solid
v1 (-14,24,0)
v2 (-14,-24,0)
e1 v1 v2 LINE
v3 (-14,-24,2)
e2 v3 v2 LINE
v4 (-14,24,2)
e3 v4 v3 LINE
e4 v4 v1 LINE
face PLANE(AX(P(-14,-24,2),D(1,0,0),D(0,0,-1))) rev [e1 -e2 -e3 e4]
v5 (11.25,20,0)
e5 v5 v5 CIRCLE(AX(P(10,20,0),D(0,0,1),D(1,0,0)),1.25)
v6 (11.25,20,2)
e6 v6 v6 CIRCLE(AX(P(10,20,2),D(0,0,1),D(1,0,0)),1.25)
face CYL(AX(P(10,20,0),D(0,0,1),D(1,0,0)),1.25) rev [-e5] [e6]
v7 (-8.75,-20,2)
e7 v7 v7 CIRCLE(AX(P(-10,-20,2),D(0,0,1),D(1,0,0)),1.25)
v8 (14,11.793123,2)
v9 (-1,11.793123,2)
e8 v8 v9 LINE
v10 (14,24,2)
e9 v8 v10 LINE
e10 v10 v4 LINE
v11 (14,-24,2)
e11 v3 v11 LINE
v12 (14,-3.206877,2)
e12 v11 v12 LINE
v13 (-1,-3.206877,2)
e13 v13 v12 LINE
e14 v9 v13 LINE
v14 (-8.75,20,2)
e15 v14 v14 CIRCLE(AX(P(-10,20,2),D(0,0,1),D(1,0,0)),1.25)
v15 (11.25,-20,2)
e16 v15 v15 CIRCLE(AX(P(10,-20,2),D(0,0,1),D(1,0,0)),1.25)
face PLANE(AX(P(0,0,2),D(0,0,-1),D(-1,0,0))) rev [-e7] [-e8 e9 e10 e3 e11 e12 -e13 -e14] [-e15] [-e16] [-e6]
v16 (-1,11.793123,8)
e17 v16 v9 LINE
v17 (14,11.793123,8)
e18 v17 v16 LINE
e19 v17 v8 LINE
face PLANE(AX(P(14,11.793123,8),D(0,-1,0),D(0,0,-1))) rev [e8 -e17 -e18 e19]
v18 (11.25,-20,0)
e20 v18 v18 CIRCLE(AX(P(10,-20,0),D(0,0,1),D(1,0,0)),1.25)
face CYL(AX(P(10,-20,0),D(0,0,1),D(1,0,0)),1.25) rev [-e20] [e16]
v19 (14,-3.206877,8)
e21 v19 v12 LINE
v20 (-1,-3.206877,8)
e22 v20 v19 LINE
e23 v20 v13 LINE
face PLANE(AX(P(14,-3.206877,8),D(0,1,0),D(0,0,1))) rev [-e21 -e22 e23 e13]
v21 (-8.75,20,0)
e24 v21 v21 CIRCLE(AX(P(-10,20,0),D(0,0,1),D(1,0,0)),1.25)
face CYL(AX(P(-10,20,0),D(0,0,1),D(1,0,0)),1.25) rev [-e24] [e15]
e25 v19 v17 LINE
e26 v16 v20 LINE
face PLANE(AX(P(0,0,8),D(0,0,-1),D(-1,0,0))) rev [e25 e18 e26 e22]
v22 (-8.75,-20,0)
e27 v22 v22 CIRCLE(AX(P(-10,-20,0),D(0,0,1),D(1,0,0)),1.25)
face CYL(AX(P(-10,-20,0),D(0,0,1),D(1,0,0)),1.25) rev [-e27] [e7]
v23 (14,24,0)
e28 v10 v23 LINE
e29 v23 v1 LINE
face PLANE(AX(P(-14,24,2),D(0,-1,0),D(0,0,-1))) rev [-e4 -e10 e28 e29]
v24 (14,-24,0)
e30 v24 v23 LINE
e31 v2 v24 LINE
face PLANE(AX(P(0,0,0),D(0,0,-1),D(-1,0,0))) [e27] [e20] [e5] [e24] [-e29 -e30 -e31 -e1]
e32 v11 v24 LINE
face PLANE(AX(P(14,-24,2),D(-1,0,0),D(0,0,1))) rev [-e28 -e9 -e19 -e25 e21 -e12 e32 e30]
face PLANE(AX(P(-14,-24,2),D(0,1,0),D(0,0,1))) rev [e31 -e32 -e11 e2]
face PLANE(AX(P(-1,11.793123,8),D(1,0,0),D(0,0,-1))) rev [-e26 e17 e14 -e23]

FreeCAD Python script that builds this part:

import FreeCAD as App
import Part
import Sketcher

doc = App.newDocument("Part")
body = doc.addObject("PartDesign::Body", "Body")

# Sketch on XY plane
sketch1 = doc.addObject("Sketcher::SketchObject", "Sketch")
body.addObject(sketch1)
sketch1.AttachmentSupport = (doc.XY_Plane, [""])
sketch1.MapMode = "FlatFace"
sketch1.addGeometry([
    Part.LineSegment(App.Vector(-14, 24, 0), App.Vector(-14, -24, 0)),
    Part.LineSegment(App.Vector(-14, -24, 0), App.Vector(14, -24, 0)),
    Part.LineSegment(App.Vector(14, -24, 0), App.Vector(14, 24, 0)),
    Part.LineSegment(App.Vector(14, 24, 0), App.Vector(-14, 24, 0)),
], False)
sketch1.addConstraint([
    Sketcher.Constraint("Coincident", 0, 2, 1, 1),
    Sketcher.Constraint("Coincident", 1, 2, 2, 1),
    Sketcher.Constraint("Coincident", 2, 2, 3, 1),
    Sketcher.Constraint("Coincident", 3, 2, 0, 1),
    Sketcher.Constraint("Vertical", 0),
    Sketcher.Constraint("Horizontal", 1),
    Sketcher.Constraint("Vertical", 2),
    Sketcher.Constraint("Horizontal", 3),
    Sketcher.Constraint("Symmetric", 0, 2, 2, 2, -1, 1),
    Sketcher.Constraint("DistanceX", 1, 1, 1, 2, 28.0),
    Sketcher.Constraint("DistanceY", 0, 2, 0, 1, 48.0),
])
pad1 = doc.addObject("PartDesign::Pad", "Pad")
body.addObject(pad1)
pad1.Profile = sketch1
pad1.Length = 2

# Sketch on XY plane
sketch2 = doc.addObject("Sketcher::SketchObject", "Sketch001")
body.addObject(sketch2)
sketch2.AttachmentSupport = (doc.XY_Plane, [""])
sketch2.MapMode = "FlatFace"
sketch2.AttachmentOffset = App.Placement(App.Vector(0, 0, 2), App.Rotation())
sketch2.addGeometry([
    Part.Circle(App.Vector(-10, 20, 0), App.Vector(0, 0, 1), 1.25),
    Part.Circle(App.Vector(10, 20, 0), App.Vector(0, 0, 1), 1.25),
    Part.Circle(App.Vector(10, -20, 0), App.Vector(0, 0, 1), 1.25),
    Part.Circle(App.Vector(-10, -20, 0), App.Vector(0, 0, 1), 1.25),
], False)
sketch2.addConstraint([
    Sketcher.Constraint("Equal", 0, 1),
    Sketcher.Constraint("Equal", 1, 2),
    Sketcher.Constraint("Equal", 2, 3),
    Sketcher.Constraint("Symmetric", 0, 3, 2, 3, -1, 1),
    Sketcher.Constraint("Symmetric", 1, 3, 3, 3, -1, 1),
    Sketcher.Constraint("Symmetric", 0, 3, 1, 3, -2),
    Sketcher.Constraint("Diameter", 0, 2.5),
    Sketcher.Constraint("DistanceX", 0, 3, -1, 1, 10.0),
    Sketcher.Constraint("DistanceY", -1, 1, 0, 3, 20.0),
])
pocket1 = doc.addObject("PartDesign::Pocket", "Pocket")
body.addObject(pocket1)
pocket1.Profile = sketch2
pocket1.Type = "ThroughAll"

# Sketch on XY plane
sketch3 = doc.addObject("Sketcher::SketchObject", "Sketch002")
body.addObject(sketch3)
sketch3.AttachmentSupport = (doc.XY_Plane, [""])
sketch3.MapMode = "FlatFace"
sketch3.AttachmentOffset = App.Placement(App.Vector(0, 0, 2), App.Rotation())
sketch3.addGeometry([
    Part.LineSegment(App.Vector(-1, 11.793123, 0), App.Vector(-1, -3.206877, 0)),
    Part.LineSegment(App.Vector(-1, -3.206877, 0), App.Vector(14, -3.206877, 0)),
    Part.LineSegment(App.Vector(14, -3.206877, 0), App.Vector(14, 11.793123, 0)),
    Part.LineSegment(App.Vector(14, 11.793123, 0), App.Vector(-1, 11.793123, 0)),
], False)
sketch3.addConstraint([
    Sketcher.Constraint("Coincident", 0, 2, 1, 1),
    Sketcher.Constraint("Coincident", 1, 2, 2, 1),
    Sketcher.Constraint("Coincident", 2, 2, 3, 1),
    Sketcher.Constraint("Coincident", 3, 2, 0, 1),
    Sketcher.Constraint("Vertical", 0),
    Sketcher.Constraint("Horizontal", 1),
    Sketcher.Constraint("Vertical", 2),
    Sketcher.Constraint("Horizontal", 3),
    Sketcher.Constraint("Equal", 3, 0),
    Sketcher.Constraint("DistanceX", 1, 1, 1, 2, 15.0),
    Sketcher.Constraint("DistanceX", 0, 2, -1, 1, 1.0),
    Sketcher.Constraint("DistanceY", 0, 2, -1, 1, 3.206877),
])
pad2 = doc.addObject("PartDesign::Pad", "Pad001")
body.addObject(pad2)
pad2.Profile = sketch3
pad2.Length = 6

doc.recompute()
